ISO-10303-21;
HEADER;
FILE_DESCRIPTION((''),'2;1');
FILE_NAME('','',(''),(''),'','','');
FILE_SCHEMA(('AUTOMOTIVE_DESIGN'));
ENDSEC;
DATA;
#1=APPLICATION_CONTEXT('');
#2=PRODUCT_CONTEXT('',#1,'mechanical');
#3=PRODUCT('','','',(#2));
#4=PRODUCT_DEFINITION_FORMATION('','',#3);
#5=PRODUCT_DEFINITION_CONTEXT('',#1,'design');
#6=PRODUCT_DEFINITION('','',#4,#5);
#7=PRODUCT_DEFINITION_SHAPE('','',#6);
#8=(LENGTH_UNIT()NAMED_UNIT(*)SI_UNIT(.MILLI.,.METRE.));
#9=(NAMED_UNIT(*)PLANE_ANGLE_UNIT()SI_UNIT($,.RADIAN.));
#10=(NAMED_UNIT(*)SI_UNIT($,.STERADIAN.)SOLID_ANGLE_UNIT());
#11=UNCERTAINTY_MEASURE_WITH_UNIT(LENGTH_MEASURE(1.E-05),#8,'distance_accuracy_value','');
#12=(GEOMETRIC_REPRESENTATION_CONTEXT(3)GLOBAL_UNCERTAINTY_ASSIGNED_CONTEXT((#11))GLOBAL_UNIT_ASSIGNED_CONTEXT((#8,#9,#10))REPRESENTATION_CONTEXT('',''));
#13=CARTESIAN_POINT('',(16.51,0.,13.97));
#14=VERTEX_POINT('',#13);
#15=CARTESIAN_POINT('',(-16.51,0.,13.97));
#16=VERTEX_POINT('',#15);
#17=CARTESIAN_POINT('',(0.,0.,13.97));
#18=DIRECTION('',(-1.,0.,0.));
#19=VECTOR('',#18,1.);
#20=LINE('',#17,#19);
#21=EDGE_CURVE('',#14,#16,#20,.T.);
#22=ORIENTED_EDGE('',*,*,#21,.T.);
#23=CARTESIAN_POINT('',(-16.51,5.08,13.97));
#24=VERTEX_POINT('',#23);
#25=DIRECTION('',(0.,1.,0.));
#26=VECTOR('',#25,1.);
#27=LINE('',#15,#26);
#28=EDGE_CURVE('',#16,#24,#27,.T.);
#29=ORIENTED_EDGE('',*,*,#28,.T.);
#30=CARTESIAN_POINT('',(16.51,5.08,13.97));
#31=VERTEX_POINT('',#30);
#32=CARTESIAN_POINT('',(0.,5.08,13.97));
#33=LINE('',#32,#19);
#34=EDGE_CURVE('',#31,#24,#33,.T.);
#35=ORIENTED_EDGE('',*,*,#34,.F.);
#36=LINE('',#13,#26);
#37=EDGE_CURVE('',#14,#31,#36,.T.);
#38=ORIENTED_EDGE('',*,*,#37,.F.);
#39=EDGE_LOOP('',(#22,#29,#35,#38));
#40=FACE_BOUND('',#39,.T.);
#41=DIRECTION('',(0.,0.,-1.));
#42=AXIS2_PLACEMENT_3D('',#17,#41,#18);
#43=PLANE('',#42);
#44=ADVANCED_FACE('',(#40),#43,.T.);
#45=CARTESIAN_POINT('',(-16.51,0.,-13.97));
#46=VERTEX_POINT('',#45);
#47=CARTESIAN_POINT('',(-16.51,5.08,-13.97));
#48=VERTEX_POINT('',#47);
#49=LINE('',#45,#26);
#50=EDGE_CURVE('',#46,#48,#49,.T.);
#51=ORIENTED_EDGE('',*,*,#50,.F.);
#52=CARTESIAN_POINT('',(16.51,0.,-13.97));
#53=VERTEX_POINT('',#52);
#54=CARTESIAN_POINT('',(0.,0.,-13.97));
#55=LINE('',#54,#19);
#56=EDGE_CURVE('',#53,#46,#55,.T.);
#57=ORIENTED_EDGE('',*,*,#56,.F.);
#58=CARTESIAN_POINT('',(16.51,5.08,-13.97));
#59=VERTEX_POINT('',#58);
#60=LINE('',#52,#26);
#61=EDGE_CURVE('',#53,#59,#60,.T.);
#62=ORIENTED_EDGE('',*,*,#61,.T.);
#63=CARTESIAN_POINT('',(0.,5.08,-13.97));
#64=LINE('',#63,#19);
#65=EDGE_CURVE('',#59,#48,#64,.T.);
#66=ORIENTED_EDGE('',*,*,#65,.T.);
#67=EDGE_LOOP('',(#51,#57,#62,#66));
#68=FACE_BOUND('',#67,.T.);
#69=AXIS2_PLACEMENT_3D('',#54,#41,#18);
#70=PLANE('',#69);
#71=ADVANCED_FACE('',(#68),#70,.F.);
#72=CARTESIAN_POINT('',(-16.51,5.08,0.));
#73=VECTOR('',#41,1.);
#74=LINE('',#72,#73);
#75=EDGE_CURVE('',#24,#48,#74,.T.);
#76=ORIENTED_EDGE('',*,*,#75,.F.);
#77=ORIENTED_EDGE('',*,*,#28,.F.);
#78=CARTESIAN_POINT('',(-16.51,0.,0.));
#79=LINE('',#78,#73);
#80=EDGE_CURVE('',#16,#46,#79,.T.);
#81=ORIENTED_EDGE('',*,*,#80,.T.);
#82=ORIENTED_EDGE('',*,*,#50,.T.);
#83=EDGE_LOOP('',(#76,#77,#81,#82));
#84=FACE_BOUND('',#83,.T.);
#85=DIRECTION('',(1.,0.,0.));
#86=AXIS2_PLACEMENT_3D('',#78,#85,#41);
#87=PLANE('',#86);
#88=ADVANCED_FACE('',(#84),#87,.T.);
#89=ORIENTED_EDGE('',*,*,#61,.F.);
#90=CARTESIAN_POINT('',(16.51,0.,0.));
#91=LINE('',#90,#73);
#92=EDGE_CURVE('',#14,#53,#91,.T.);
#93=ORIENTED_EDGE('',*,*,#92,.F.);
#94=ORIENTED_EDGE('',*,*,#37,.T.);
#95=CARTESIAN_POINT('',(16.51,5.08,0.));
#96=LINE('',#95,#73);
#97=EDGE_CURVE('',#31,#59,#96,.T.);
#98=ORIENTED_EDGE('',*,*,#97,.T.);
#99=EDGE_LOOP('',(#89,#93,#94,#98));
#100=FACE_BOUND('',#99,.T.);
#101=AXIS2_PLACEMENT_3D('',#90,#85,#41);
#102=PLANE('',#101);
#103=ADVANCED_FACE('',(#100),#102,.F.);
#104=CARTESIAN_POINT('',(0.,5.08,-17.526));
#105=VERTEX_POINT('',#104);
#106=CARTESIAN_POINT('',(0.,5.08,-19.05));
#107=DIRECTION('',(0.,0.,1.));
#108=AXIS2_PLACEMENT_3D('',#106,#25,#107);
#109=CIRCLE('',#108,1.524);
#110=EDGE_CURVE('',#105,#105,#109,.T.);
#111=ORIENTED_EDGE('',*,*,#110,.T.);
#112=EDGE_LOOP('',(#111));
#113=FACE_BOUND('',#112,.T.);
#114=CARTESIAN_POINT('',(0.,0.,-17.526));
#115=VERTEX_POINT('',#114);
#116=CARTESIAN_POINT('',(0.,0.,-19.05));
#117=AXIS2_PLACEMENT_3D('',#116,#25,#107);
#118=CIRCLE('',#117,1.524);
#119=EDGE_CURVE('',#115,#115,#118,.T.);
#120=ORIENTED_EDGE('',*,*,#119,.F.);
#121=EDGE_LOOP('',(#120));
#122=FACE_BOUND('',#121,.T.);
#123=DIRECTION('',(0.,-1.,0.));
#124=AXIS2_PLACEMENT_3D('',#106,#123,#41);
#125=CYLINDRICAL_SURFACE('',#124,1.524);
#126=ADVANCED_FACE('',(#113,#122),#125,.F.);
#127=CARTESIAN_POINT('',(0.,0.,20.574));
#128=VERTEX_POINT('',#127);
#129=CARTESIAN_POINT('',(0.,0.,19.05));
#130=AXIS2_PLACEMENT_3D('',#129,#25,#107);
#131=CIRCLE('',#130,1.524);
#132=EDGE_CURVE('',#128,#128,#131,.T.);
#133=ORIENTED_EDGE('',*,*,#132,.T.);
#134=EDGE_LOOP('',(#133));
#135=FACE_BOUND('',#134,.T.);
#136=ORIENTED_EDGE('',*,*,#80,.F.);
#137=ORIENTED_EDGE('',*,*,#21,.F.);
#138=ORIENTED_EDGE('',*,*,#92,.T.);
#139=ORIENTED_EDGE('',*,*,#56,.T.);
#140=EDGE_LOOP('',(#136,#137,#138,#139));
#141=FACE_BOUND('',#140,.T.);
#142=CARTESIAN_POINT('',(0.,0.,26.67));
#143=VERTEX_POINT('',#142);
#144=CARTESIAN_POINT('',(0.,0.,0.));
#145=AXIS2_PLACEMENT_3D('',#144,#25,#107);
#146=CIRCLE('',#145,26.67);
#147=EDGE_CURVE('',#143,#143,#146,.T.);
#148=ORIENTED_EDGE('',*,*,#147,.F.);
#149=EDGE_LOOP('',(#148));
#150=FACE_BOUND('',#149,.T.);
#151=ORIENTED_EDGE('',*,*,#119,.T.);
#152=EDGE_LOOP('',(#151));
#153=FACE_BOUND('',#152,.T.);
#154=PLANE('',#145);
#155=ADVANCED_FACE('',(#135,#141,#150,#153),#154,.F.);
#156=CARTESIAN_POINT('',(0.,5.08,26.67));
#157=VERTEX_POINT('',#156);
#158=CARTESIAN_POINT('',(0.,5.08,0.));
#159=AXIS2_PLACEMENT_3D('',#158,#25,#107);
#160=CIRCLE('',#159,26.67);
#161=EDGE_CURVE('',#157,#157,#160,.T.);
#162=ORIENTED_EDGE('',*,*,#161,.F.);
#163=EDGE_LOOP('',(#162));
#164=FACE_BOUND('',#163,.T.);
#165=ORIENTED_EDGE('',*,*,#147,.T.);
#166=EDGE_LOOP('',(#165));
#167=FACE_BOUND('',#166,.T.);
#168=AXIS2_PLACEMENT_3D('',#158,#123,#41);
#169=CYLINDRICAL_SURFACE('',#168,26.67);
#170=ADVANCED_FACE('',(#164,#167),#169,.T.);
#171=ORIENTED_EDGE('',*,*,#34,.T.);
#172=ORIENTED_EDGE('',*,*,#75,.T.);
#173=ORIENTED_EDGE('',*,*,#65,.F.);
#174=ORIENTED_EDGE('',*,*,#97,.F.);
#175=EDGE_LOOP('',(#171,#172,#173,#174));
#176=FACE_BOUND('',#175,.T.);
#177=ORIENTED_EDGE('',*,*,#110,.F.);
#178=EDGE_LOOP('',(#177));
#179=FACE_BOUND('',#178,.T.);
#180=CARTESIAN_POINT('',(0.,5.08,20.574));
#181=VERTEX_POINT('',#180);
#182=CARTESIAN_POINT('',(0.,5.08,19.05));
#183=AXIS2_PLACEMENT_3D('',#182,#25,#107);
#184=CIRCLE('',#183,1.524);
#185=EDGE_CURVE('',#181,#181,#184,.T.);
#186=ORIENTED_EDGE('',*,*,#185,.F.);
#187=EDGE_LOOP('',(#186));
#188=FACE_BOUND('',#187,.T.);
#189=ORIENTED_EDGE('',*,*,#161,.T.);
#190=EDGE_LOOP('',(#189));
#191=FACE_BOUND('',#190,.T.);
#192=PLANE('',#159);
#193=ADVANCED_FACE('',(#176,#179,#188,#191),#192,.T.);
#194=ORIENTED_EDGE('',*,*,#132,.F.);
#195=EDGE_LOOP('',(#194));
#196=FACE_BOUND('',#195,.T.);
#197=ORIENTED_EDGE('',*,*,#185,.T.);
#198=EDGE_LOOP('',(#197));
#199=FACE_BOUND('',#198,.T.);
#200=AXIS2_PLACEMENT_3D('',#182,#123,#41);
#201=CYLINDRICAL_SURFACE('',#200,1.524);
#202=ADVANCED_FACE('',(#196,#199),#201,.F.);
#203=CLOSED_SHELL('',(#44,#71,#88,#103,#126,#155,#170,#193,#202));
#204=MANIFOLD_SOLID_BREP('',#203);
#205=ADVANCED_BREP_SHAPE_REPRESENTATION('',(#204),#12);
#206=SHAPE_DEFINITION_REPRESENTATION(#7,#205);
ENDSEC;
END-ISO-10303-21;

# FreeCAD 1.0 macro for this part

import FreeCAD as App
import Part
import Sketcher
Q = App.Units.Quantity


def add_polygon(sketch, points):
    """Adds a closed chain of lines whose ends are joined by coincident constraints."""
    first, n = sketch.GeometryCount, len(points)
    for a, b in zip(points, points[1:] + points[:1]):
        sketch.addGeometry(Part.LineSegment(App.Vector(*a, 0), App.Vector(*b, 0)), False)
    for i in range(n):
        sketch.addConstraint(Sketcher.Constraint("Coincident", first + i, 2, first + (i + 1) % n, 1))

doc = App.newDocument("Part")
body = doc.addObject("PartDesign::Body", "Body")

# Sketch on XZ plane
sketch1 = body.newObject("Sketcher::SketchObject", "Sketch")
sketch1.AttachmentSupport = (doc.getObject("XZ_Plane"), [""])
sketch1.MapMode = "FlatFace"
sketch1.addGeometry(Part.Circle(App.Vector(0, 0, 0), App.Vector(0, 0, 1), 26.7), False)
sketch1.addGeometry(Part.Circle(App.Vector(0, 19.1, 0), App.Vector(0, 0, 1), 1.5), False)
sketch1.addGeometry(Part.Circle(App.Vector(0, -19.1, 0), App.Vector(0, 0, 1), 1.5), False)
sketch1.addConstraint(Sketcher.Constraint("Coincident", 0, 3, -1, 1))
sketch1.addConstraint(Sketcher.Constraint("Equal", 1, 2))
sketch1.addConstraint(Sketcher.Constraint("Symmetric", 1, 3, 2, 3, -1, 1))
sketch1.addConstraint(Sketcher.Constraint("PointOnObject", 1, 3, -2))
sketch1.addConstraint(Sketcher.Constraint("Diameter", 0, Q("2.1 in")))
sketch1.addConstraint(Sketcher.Constraint("Diameter", 1, Q("0.12 in")))
sketch1.addConstraint(Sketcher.Constraint("DistanceY", 2, 3, 1, 3, Q("1.5 in")))
pad1 = body.newObject("PartDesign::Pad", "Pad")
pad1.Profile = sketch1
pad1.Length = Q("0.2 in")
pad1.Reversed = True

# Sketch on XZ plane
sketch2 = body.newObject("Sketcher::SketchObject", "Sketch001")
sketch2.AttachmentSupport = (doc.getObject("XZ_Plane"), [""])
sketch2.MapMode = "FlatFace"
sketch2.AttachmentOffset = App.Placement(App.Vector(0, 0, -0.2 * 25.4), App.Rotation())
add_polygon(sketch2, [(-17, -14), (-17, 14), (17, 14), (17, -14)])  # lines 0-3
sketch2.addConstraint(Sketcher.Constraint("Vertical", 0))
sketch2.addConstraint(Sketcher.Constraint("Horizontal", 1))
sketch2.addConstraint(Sketcher.Constraint("Vertical", 2))
sketch2.addConstraint(Sketcher.Constraint("Horizontal", 3))
sketch2.addConstraint(Sketcher.Constraint("Symmetric", 0, 2, 2, 2, -1, 1))
sketch2.addConstraint(Sketcher.Constraint("DistanceX", 1, 1, 1, 2, Q("1.3 in")))
sketch2.addConstraint(Sketcher.Constraint("DistanceY", 0, 1, 0, 2, Q("1.1 in")))
pocket1 = body.newObject("PartDesign::Pocket", "Pocket")
pocket1.Profile = sketch2
pocket1.Type = "ThroughAll"
pocket1.Reversed = True

doc.recompute()
